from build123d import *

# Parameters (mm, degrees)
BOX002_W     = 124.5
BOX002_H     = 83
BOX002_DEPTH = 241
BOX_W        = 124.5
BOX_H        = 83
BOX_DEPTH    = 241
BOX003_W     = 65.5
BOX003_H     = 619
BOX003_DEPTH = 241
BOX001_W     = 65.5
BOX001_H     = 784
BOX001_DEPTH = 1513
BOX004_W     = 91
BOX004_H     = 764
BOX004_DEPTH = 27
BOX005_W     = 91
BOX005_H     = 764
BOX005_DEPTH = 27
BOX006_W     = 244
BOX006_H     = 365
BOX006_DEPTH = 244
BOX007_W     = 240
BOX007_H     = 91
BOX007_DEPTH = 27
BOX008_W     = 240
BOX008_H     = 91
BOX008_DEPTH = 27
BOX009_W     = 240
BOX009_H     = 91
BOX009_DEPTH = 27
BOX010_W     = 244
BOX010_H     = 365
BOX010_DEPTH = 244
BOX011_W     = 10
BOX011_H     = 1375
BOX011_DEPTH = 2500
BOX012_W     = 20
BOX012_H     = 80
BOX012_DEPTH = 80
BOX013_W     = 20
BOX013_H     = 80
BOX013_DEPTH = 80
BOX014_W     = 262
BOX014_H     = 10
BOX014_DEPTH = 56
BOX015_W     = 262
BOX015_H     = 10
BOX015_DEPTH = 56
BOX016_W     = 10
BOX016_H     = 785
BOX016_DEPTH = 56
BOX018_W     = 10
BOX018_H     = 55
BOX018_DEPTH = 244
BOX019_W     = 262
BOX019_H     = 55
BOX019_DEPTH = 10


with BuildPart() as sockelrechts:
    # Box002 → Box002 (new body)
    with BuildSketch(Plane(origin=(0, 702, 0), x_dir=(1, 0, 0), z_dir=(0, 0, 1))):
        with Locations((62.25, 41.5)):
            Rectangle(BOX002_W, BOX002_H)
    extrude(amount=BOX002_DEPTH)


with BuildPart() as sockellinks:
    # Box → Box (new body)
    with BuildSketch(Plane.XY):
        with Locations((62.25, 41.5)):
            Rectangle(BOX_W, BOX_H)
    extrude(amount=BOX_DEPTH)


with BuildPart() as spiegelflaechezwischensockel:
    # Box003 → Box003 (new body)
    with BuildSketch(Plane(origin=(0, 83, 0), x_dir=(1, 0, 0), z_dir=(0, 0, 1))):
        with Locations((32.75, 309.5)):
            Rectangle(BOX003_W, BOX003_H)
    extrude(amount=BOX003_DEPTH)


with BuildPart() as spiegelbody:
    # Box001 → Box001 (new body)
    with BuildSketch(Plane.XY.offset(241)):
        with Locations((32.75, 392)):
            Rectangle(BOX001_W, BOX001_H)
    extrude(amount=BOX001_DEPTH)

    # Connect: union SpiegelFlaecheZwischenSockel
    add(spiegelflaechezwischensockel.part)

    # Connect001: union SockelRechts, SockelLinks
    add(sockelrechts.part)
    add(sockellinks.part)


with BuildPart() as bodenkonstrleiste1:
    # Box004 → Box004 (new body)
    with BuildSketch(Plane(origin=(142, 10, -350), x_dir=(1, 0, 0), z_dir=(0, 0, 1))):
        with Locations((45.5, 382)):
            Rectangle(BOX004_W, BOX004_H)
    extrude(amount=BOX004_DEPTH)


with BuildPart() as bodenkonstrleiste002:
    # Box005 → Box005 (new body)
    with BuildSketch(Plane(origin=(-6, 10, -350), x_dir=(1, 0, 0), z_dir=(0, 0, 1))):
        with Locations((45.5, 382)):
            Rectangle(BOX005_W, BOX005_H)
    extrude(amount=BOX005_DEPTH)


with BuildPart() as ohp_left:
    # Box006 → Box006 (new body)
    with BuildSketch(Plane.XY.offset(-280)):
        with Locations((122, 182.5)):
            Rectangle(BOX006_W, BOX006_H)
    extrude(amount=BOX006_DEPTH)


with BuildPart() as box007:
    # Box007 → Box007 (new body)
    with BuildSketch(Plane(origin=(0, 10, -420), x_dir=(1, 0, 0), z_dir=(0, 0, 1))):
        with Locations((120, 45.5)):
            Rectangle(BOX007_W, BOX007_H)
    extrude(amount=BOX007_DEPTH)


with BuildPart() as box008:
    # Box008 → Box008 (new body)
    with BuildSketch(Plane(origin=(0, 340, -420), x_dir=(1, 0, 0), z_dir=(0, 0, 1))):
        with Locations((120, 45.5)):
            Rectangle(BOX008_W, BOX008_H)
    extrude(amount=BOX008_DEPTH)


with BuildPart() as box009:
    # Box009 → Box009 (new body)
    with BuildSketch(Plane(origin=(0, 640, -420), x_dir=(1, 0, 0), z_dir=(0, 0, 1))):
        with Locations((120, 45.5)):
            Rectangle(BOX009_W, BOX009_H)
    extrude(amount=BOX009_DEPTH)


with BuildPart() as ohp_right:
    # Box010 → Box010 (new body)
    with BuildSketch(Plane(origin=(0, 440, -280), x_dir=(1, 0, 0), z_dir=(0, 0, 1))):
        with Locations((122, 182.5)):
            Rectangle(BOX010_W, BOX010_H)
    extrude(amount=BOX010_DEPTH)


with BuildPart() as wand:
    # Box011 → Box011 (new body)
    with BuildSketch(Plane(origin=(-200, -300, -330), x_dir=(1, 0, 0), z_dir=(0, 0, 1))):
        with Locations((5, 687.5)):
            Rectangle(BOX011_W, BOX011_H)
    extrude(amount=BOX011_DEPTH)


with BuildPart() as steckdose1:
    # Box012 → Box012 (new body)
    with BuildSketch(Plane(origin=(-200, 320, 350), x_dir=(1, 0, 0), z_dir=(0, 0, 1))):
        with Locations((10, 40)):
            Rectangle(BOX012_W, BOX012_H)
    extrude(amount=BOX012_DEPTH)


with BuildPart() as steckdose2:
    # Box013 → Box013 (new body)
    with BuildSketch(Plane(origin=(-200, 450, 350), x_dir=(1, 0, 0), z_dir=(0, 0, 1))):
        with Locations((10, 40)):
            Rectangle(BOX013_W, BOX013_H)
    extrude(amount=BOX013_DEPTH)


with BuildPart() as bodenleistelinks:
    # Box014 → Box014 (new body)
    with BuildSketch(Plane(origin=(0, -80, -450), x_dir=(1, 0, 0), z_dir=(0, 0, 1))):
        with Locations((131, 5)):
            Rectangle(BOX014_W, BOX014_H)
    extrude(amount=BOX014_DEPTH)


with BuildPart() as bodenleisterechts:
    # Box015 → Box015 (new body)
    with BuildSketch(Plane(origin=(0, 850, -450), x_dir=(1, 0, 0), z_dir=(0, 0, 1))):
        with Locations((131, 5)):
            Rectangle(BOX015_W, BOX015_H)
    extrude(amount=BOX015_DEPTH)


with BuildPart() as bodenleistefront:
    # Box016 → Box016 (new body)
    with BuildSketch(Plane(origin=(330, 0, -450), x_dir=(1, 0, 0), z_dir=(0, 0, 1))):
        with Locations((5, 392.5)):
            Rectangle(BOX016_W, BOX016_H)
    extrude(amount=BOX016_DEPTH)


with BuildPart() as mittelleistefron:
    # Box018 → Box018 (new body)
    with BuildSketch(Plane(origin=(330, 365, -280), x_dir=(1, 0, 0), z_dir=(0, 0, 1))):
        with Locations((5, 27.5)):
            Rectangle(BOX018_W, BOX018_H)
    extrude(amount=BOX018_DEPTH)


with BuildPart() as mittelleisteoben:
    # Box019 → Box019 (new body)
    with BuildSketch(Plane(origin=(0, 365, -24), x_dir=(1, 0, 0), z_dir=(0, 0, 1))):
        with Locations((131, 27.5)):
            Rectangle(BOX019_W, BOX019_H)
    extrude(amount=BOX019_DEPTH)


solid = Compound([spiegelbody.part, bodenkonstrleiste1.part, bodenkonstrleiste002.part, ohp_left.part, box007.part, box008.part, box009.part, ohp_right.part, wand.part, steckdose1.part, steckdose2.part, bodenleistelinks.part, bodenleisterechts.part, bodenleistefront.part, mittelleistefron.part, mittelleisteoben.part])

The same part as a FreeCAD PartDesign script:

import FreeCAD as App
import Part
import Sketcher

doc = App.newDocument("Part")
params = doc.addObject("Spreadsheet::Sheet", "Params")
for row, (alias, value) in enumerate([
    ("sketch1_height", "83 mm"),
    ("sketch1_width", "124.5 mm"),
    ("pad1_length", "241 mm"),
    ("sketch2_height", "83 mm"),
    ("sketch2_width", "124.5 mm"),
    ("pad2_length", "241 mm"),
    ("sketch3_height", "619 mm"),
    ("sketch3_width", "65.5 mm"),
    ("pad3_length", "241 mm"),
    ("sketch4_height", "784 mm"),
    ("sketch4_width", "65.5 mm"),
    ("pad4_length", "1513 mm"),
    ("sketch5_width", "91 mm"),
    ("sketch5_height", "764 mm"),
    ("pad5_length", "27 mm"),
    ("sketch6_width", "91 mm"),
    ("sketch6_height", "764 mm"),
    ("pad6_length", "27 mm"),
    ("sketch7_width", "244 mm"),
    ("sketch7_height", "365 mm"),
    ("pad7_length", "244 mm"),
    ("sketch8_width", "240 mm"),
    ("sketch8_height", "91 mm"),
    ("pad8_length", "27 mm"),
    ("sketch9_width", "240 mm"),
    ("sketch9_height", "91 mm"),
    ("pad9_length", "27 mm"),
    ("sketch10_width", "240 mm"),
    ("sketch10_height", "91 mm"),
    ("pad10_length", "27 mm"),
    ("sketch11_width", "244 mm"),
    ("sketch11_height", "365 mm"),
    ("pad11_length", "244 mm"),
    ("sketch12_width", "10 mm"),
    ("sketch12_height", "1375 mm"),
    ("pad12_length", "2500 mm"),
    ("sketch13_width", "20 mm"),
    ("sketch13_height", "80 mm"),
    ("pad13_length", "80 mm"),
    ("sketch14_width", "20 mm"),
    ("sketch14_height", "80 mm"),
    ("pad14_length", "80 mm"),
    ("sketch15_width", "262 mm"),
    ("sketch15_height", "10 mm"),
    ("pad15_length", "56 mm"),
    ("sketch16_width", "262 mm"),
    ("sketch16_height", "10 mm"),
    ("pad16_length", "56 mm"),
    ("sketch17_width", "10 mm"),
    ("sketch17_height", "785 mm"),
    ("pad17_length", "56 mm"),
    ("sketch18_width", "10 mm"),
    ("sketch18_height", "55 mm"),
    ("pad18_length", "244 mm"),
    ("sketch19_width", "262 mm"),
    ("sketch19_height", "55 mm"),
    ("pad19_length", "10 mm"),
], start=1):
    params.set(f"A{row}", alias)
    params.set(f"B{row}", "=" + value)
    params.setAlias(f"B{row}", alias)

body = doc.addObject("PartDesign::Body", "Body")

# Sketch on XY plane
sketch1 = doc.addObject("Sketcher::SketchObject", "Sketch")
body.addObject(sketch1)
sketch1.AttachmentSupport = (doc.XY_Plane, [""])
sketch1.MapMode = "FlatFace"
sketch1.addGeometry(Part.LineSegment(App.Vector(0, 785, 0), App.Vector(0, 702, 0)), False)
sketch1.addGeometry(Part.LineSegment(App.Vector(0, 702, 0), App.Vector(124, 702, 0)), False)
sketch1.addGeometry(Part.LineSegment(App.Vector(124, 702, 0), App.Vector(124, 785, 0)), False)
sketch1.addGeometry(Part.LineSegment(App.Vector(124, 785, 0), App.Vector(0, 785, 0)), False)
sketch1.addConstraint(Sketcher.Constraint("Coincident", 0, 2, 1, 1))
sketch1.addConstraint(Sketcher.Constraint("Coincident", 1, 2, 2, 1))
sketch1.addConstraint(Sketcher.Constraint("Coincident", 2, 2, 3, 1))
sketch1.addConstraint(Sketcher.Constraint("Coincident", 3, 2, 0, 1))
sketch1.addConstraint(Sketcher.Constraint("Vertical", 0))
sketch1.addConstraint(Sketcher.Constraint("Horizontal", 1))
sketch1.addConstraint(Sketcher.Constraint("Vertical", 2))
sketch1.addConstraint(Sketcher.Constraint("Horizontal", 3))
sketch1.addConstraint(Sketcher.Constraint("PointOnObject", 0, 2, -2))
sketch1.addConstraint(Sketcher.Constraint("DistanceY", 0, 2, 0, 1, 83.0))
sketch1.addConstraint(Sketcher.Constraint("DistanceX", 1, 1, 1, 2, 124.5))
sketch1.addConstraint(Sketcher.Constraint("DistanceY", -1, 1, 0, 2, 702.0))
sketch1.setExpression("Constraints[9]", "Params.sketch1_height")
sketch1.setExpression("Constraints[10]", "Params.sketch1_width")
pad1 = doc.addObject("PartDesign::Pad", "Pad")
body.addObject(pad1)
pad1.Profile = sketch1
pad1.setExpression("Length", "Params.pad1_length")
body2 = doc.addObject("PartDesign::Body", "Body001")

# Sketch on XY plane
sketch2 = doc.addObject("Sketcher::SketchObject", "Sketch001")
body2.addObject(sketch2)
sketch2.AttachmentSupport = (doc.getObject("XY_Plane001"), [""])
sketch2.MapMode = "FlatFace"
sketch2.addGeometry(Part.LineSegment(App.Vector(0, 83, 0), App.Vector(0, 0, 0)), False)
sketch2.addGeometry(Part.LineSegment(App.Vector(0, 0, 0), App.Vector(124, 0, 0)), False)
sketch2.addGeometry(Part.LineSegment(App.Vector(124, 0, 0), App.Vector(124, 83, 0)), False)
sketch2.addGeometry(Part.LineSegment(App.Vector(124, 83, 0), App.Vector(0, 83, 0)), False)
sketch2.addConstraint(Sketcher.Constraint("Coincident", 0, 2, 1, 1))
sketch2.addConstraint(Sketcher.Constraint("Coincident", 1, 2, 2, 1))
sketch2.addConstraint(Sketcher.Constraint("Coincident", 2, 2, 3, 1))
sketch2.addConstraint(Sketcher.Constraint("Coincident", 3, 2, 0, 1))
sketch2.addConstraint(Sketcher.Constraint("Vertical", 0))
sketch2.addConstraint(Sketcher.Constraint("Horizontal", 1))
sketch2.addConstraint(Sketcher.Constraint("Vertical", 2))
sketch2.addConstraint(Sketcher.Constraint("Horizontal", 3))
sketch2.addConstraint(Sketcher.Constraint("Coincident", 0, 2, -1, 1))
sketch2.addConstraint(Sketcher.Constraint("DistanceY", 0, 2, 0, 1, 83.0))
sketch2.addConstraint(Sketcher.Constraint("DistanceX", 1, 1, 1, 2, 124.5))
sketch2.setExpression("Constraints[9]", "Params.sketch2_height")
sketch2.setExpression("Constraints[10]", "Params.sketch2_width")
pad2 = doc.addObject("PartDesign::Pad", "Pad001")
body2.addObject(pad2)
pad2.Profile = sketch2
pad2.setExpression("Length", "Params.pad2_length")
body3 = doc.addObject("PartDesign::Body", "Body002")

# Sketch on XY plane
sketch3 = doc.addObject("Sketcher::SketchObject", "Sketch002")
body3.addObject(sketch3)
sketch3.AttachmentSupport = (doc.getObject("XY_Plane002"), [""])
sketch3.MapMode = "FlatFace"
sketch3.addGeometry(Part.LineSegment(App.Vector(0, 702, 0), App.Vector(0, 83, 0)), False)
sketch3.addGeometry(Part.LineSegment(App.Vector(0, 83, 0), App.Vector(66, 83, 0)), False)
sketch3.addGeometry(Part.LineSegment(App.Vector(66, 83, 0), App.Vector(66, 702, 0)), False)
sketch3.addGeometry(Part.LineSegment(App.Vector(66, 702, 0), App.Vector(0, 702, 0)), False)
sketch3.addConstraint(Sketcher.Constraint("Coincident", 0, 2, 1, 1))
sketch3.addConstraint(Sketcher.Constraint("Coincident", 1, 2, 2, 1))
sketch3.addConstraint(Sketcher.Constraint("Coincident", 2, 2, 3, 1))
sketch3.addConstraint(Sketcher.Constraint("Coincident", 3, 2, 0, 1))
sketch3.addConstraint(Sketcher.Constraint("Vertical", 0))
sketch3.addConstraint(Sketcher.Constraint("Horizontal", 1))
sketch3.addConstraint(Sketcher.Constraint("Vertical", 2))
sketch3.addConstraint(Sketcher.Constraint("Horizontal", 3))
sketch3.addConstraint(Sketcher.Constraint("PointOnObject", 0, 2, -2))
sketch3.addConstraint(Sketcher.Constraint("DistanceY", 0, 2, 0, 1, 619.0))
sketch3.addConstraint(Sketcher.Constraint("DistanceX", 1, 1, 1, 2, 65.5))
sketch3.addConstraint(Sketcher.Constraint("DistanceY", -1, 1, 0, 2, 83.0))
sketch3.setExpression("Constraints[9]", "Params.sketch3_height")
sketch3.setExpression("Constraints[10]", "Params.sketch3_width")
pad3 = doc.addObject("PartDesign::Pad", "Pad002")
body3.addObject(pad3)
pad3.Profile = sketch3
pad3.setExpression("Length", "Params.pad3_length")
body4 = doc.addObject("PartDesign::Body", "Body003")

# Sketch on XY plane
sketch4 = doc.addObject("Sketcher::SketchObject", "Sketch003")
body4.addObject(sketch4)
sketch4.AttachmentSupport = (doc.getObject("XY_Plane003"), [""])
sketch4.MapMode = "FlatFace"
sketch4.AttachmentOffset = App.Placement(App.Vector(0, 0, 241), App.Rotation())
sketch4.addGeometry(Part.LineSegment(App.Vector(0, 784, 0), App.Vector(0, 0, 0)), False)
sketch4.addGeometry(Part.LineSegment(App.Vector(0, 0, 0), App.Vector(66, 0, 0)), False)
sketch4.addGeometry(Part.LineSegment(App.Vector(66, 0, 0), App.Vector(66, 784, 0)), False)
sketch4.addGeometry(Part.LineSegment(App.Vector(66, 784, 0), App.Vector(0, 784, 0)), False)
sketch4.addConstraint(Sketcher.Constraint("Coincident", 0, 2, 1, 1))
sketch4.addConstraint(Sketcher.Constraint("Coincident", 1, 2, 2, 1))
sketch4.addConstraint(Sketcher.Constraint("Coincident", 2, 2, 3, 1))
sketch4.addConstraint(Sketcher.Constraint("Coincident", 3, 2, 0, 1))
sketch4.addConstraint(Sketcher.Constraint("Vertical", 0))
sketch4.addConstraint(Sketcher.Constraint("Horizontal", 1))
sketch4.addConstraint(Sketcher.Constraint("Vertical", 2))
sketch4.addConstraint(Sketcher.Constraint("Horizontal", 3))
sketch4.addConstraint(Sketcher.Constraint("Coincident", 0, 2, -1, 1))
sketch4.addConstraint(Sketcher.Constraint("DistanceY", 0, 2, 0, 1, 784.0))
sketch4.addConstraint(Sketcher.Constraint("DistanceX", 1, 1, 1, 2, 65.5))
sketch4.setExpression("Constraints[9]", "Params.sketch4_height")
sketch4.setExpression("Constraints[10]", "Params.sketch4_width")
pad4 = doc.addObject("PartDesign::Pad", "Pad003")
body4.addObject(pad4)
pad4.Profile = sketch4
pad4.setExpression("Length", "Params.pad4_length")
doc.recompute()

boolean = doc.addObject("PartDesign::Boolean", "Boolean")
body4.addObject(boolean)
boolean.Type = "Fuse"
boolean.addObjects([body3])
doc.recompute()

boolean2 = doc.addObject("PartDesign::Boolean", "Boolean001")
body4.addObject(boolean2)
boolean2.Type = "Fuse"
boolean2.addObjects([body])
doc.recompute()

boolean3 = doc.addObject("PartDesign::Boolean", "Boolean002")
body4.addObject(boolean3)
boolean3.Type = "Fuse"
boolean3.addObjects([body2])
body5 = doc.addObject("PartDesign::Body", "Body004")

# Sketch on XY plane
sketch5 = doc.addObject("Sketcher::SketchObject", "Sketch004")
body5.addObject(sketch5)
sketch5.AttachmentSupport = (doc.getObject("XY_Plane004"), [""])
sketch5.MapMode = "FlatFace"
sketch5.AttachmentOffset = App.Placement(App.Vector(0, 0, -350), App.Rotation())
sketch5.addGeometry(Part.LineSegment(App.Vector(142, 774, 0), App.Vector(142, 10, 0)), False)
sketch5.addGeometry(Part.LineSegment(App.Vector(142, 10, 0), App.Vector(233, 10, 0)), False)
sketch5.addGeometry(Part.LineSegment(App.Vector(233, 10, 0), App.Vector(233, 774, 0)), False)
sketch5.addGeometry(Part.LineSegment(App.Vector(233, 774, 0), App.Vector(142, 774, 0)), False)
sketch5.addConstraint(Sketcher.Constraint("Coincident", 0, 2, 1, 1))
sketch5.addConstraint(Sketcher.Constraint("Coincident", 1, 2, 2, 1))
sketch5.addConstraint(Sketcher.Constraint("Coincident", 2, 2, 3, 1))
sketch5.addConstraint(Sketcher.Constraint("Coincident", 3, 2, 0, 1))
sketch5.addConstraint(Sketcher.Constraint("Vertical", 0))
sketch5.addConstraint(Sketcher.Constraint("Horizontal", 1))
sketch5.addConstraint(Sketcher.Constraint("Vertical", 2))
sketch5.addConstraint(Sketcher.Constraint("Horizontal", 3))
sketch5.addConstraint(Sketcher.Constraint("DistanceX", 1, 1, 1, 2, 91.0))
sketch5.addConstraint(Sketcher.Constraint("DistanceY", 0, 2, 0, 1, 764.0))
sketch5.addConstraint(Sketcher.Constraint("DistanceX", -1, 1, 0, 2, 142.0))
sketch5.addConstraint(Sketcher.Constraint("DistanceY", -1, 1, 0, 2, 10.0))
sketch5.setExpression("Constraints[8]", "Params.sketch5_width")
sketch5.setExpression("Constraints[9]", "Params.sketch5_height")
pad5 = doc.addObject("PartDesign::Pad", "Pad004")
body5.addObject(pad5)
pad5.Profile = sketch5
pad5.setExpression("Length", "Params.pad5_length")
body6 = doc.addObject("PartDesign::Body", "Body005")

# Sketch on XY plane
sketch6 = doc.addObject("Sketcher::SketchObject", "Sketch005")
body6.addObject(sketch6)
sketch6.AttachmentSupport = (doc.getObject("XY_Plane005"), [""])
sketch6.MapMode = "FlatFace"
sketch6.AttachmentOffset = App.Placement(App.Vector(0, 0, -350), App.Rotation())
sketch6.addGeometry(Part.LineSegment(App.Vector(-6, 774, 0), App.Vector(-6, 10, 0)), False)
sketch6.addGeometry(Part.LineSegment(App.Vector(-6, 10, 0), App.Vector(85, 10, 0)), False)
sketch6.addGeometry(Part.LineSegment(App.Vector(85, 10, 0), App.Vector(85, 774, 0)), False)
sketch6.addGeometry(Part.LineSegment(App.Vector(85, 774, 0), App.Vector(-6, 774, 0)), False)
sketch6.addConstraint(Sketcher.Constraint("Coincident", 0, 2, 1, 1))
sketch6.addConstraint(Sketcher.Constraint("Coincident", 1, 2, 2, 1))
sketch6.addConstraint(Sketcher.Constraint("Coincident", 2, 2, 3, 1))
sketch6.addConstraint(Sketcher.Constraint("Coincident", 3, 2, 0, 1))
sketch6.addConstraint(Sketcher.Constraint("Vertical", 0))
sketch6.addConstraint(Sketcher.Constraint("Horizontal", 1))
sketch6.addConstraint(Sketcher.Constraint("Vertical", 2))
sketch6.addConstraint(Sketcher.Constraint("Horizontal", 3))
sketch6.addConstraint(Sketcher.Constraint("DistanceX", 1, 1, 1, 2, 91.0))
sketch6.addConstraint(Sketcher.Constraint("DistanceY", 0, 2, 0, 1, 764.0))
sketch6.addConstraint(Sketcher.Constraint("DistanceX", 0, 2, -1, 1, 6.0))
sketch6.addConstraint(Sketcher.Constraint("DistanceY", -1, 1, 0, 2, 10.0))
sketch6.setExpression("Constraints[8]", "Params.sketch6_width")
sketch6.setExpression("Constraints[9]", "Params.sketch6_height")
pad6 = doc.addObject("PartDesign::Pad", "Pad005")
body6.addObject(pad6)
pad6.Profile = sketch6
pad6.setExpression("Length", "Params.pad6_length")
body7 = doc.addObject("PartDesign::Body", "Body006")

# Sketch on XY plane
sketch7 = doc.addObject("Sketcher::SketchObject", "Sketch006")
body7.addObject(sketch7)
sketch7.AttachmentSupport = (doc.getObject("XY_Plane006"), [""])
sketch7.MapMode = "FlatFace"
sketch7.AttachmentOffset = App.Placement(App.Vector(0, 0, -280), App.Rotation())
sketch7.addGeometry(Part.LineSegment(App.Vector(0, 365, 0), App.Vector(0, 0, 0)), False)
sketch7.addGeometry(Part.LineSegment(App.Vector(0, 0, 0), App.Vector(244, 0, 0)), False)
sketch7.addGeometry(Part.LineSegment(App.Vector(244, 0, 0), App.Vector(244, 365, 0)), False)
sketch7.addGeometry(Part.LineSegment(App.Vector(244, 365, 0), App.Vector(0, 365, 0)), False)
sketch7.addConstraint(Sketcher.Constraint("Coincident", 0, 2, 1, 1))
sketch7.addConstraint(Sketcher.Constraint("Coincident", 1, 2, 2, 1))
sketch7.addConstraint(Sketcher.Constraint("Coincident", 2, 2, 3, 1))
sketch7.addConstraint(Sketcher.Constraint("Coincident", 3, 2, 0, 1))
sketch7.addConstraint(Sketcher.Constraint("Vertical", 0))
sketch7.addConstraint(Sketcher.Constraint("Horizontal", 1))
sketch7.addConstraint(Sketcher.Constraint("Vertical", 2))
sketch7.addConstraint(Sketcher.Constraint("Horizontal", 3))
sketch7.addConstraint(Sketcher.Constraint("Coincident", 0, 2, -1, 1))
sketch7.addConstraint(Sketcher.Constraint("DistanceX", 1, 1, 1, 2, 244.0))
sketch7.addConstraint(Sketcher.Constraint("DistanceY", 0, 2, 0, 1, 365.0))
sketch7.setExpression("Constraints[9]", "Params.sketch7_width")
sketch7.setExpression("Constraints[10]", "Params.sketch7_height")
pad7 = doc.addObject("PartDesign::Pad", "Pad006")
body7.addObject(pad7)
pad7.Profile = sketch7
pad7.setExpression("Length", "Params.pad7_length")
body8 = doc.addObject("PartDesign::Body", "Body007")

# Sketch on XY plane
sketch8 = doc.addObject("Sketcher::SketchObject", "Sketch007")
body8.addObject(sketch8)
sketch8.AttachmentSupport = (doc.getObject("XY_Plane007"), [""])
sketch8.MapMode = "FlatFace"
sketch8.AttachmentOffset = App.Placement(App.Vector(0, 0, -420), App.Rotation())
sketch8.addGeometry(Part.LineSegment(App.Vector(0, 101, 0), App.Vector(0, 10, 0)), False)
sketch8.addGeometry(Part.LineSegment(App.Vector(0, 10, 0), App.Vector(240, 10, 0)), False)
sketch8.addGeometry(Part.LineSegment(App.Vector(240, 10, 0), App.Vector(240, 101, 0)), False)
sketch8.addGeometry(Part.LineSegment(App.Vector(240, 101, 0), App.Vector(0, 101, 0)), False)
sketch8.addConstraint(Sketcher.Constraint("Coincident", 0, 2, 1, 1))
sketch8.addConstraint(Sketcher.Constraint("Coincident", 1, 2, 2, 1))
sketch8.addConstraint(Sketcher.Constraint("Coincident", 2, 2, 3, 1))
sketch8.addConstraint(Sketcher.Constraint("Coincident", 3, 2, 0, 1))
sketch8.addConstraint(Sketcher.Constraint("Vertical", 0))
sketch8.addConstraint(Sketcher.Constraint("Horizontal", 1))
sketch8.addConstraint(Sketcher.Constraint("Vertical", 2))
sketch8.addConstraint(Sketcher.Constraint("Horizontal", 3))
sketch8.addConstraint(Sketcher.Constraint("PointOnObject", 0, 2, -2))
sketch8.addConstraint(Sketcher.Constraint("DistanceX", 1, 1, 1, 2, 240.0))
sketch8.addConstraint(Sketcher.Constraint("DistanceY", 0, 2, 0, 1, 91.0))
sketch8.addConstraint(Sketcher.Constraint("DistanceY", -1, 1, 0, 2, 10.0))
sketch8.setExpression("Constraints[9]", "Params.sketch8_width")
sketch8.setExpression("Constraints[10]", "Params.sketch8_height")
pad8 = doc.addObject("PartDesign::Pad", "Pad007")
body8.addObject(pad8)
pad8.Profile = sketch8
pad8.setExpression("Length", "Params.pad8_length")
body9 = doc.addObject("PartDesign::Body", "Body008")

# Sketch on XY plane
sketch9 = doc.addObject("Sketcher::SketchObject", "Sketch008")
body9.addObject(sketch9)
sketch9.AttachmentSupport = (doc.getObject("XY_Plane008"), [""])
sketch9.MapMode = "FlatFace"
sketch9.AttachmentOffset = App.Placement(App.Vector(0, 0, -420), App.Rotation())
sketch9.addGeometry(Part.LineSegment(App.Vector(0, 431, 0), App.Vector(0, 340, 0)), False)
sketch9.addGeometry(Part.LineSegment(App.Vector(0, 340, 0), App.Vector(240, 340, 0)), False)
sketch9.addGeometry(Part.LineSegment(App.Vector(240, 340, 0), App.Vector(240, 431, 0)), False)
sketch9.addGeometry(Part.LineSegment(App.Vector(240, 431, 0), App.Vector(0, 431, 0)), False)
sketch9.addConstraint(Sketcher.Constraint("Coincident", 0, 2, 1, 1))
sketch9.addConstraint(Sketcher.Constraint("Coincident", 1, 2, 2, 1))
sketch9.addConstraint(Sketcher.Constraint("Coincident", 2, 2, 3, 1))
sketch9.addConstraint(Sketcher.Constraint("Coincident", 3, 2, 0, 1))
sketch9.addConstraint(Sketcher.Constraint("Vertical", 0))
sketch9.addConstraint(Sketcher.Constraint("Horizontal", 1))
sketch9.addConstraint(Sketcher.Constraint("Vertical", 2))
sketch9.addConstraint(Sketcher.Constraint("Horizontal", 3))
sketch9.addConstraint(Sketcher.Constraint("PointOnObject", 0, 2, -2))
sketch9.addConstraint(Sketcher.Constraint("DistanceX", 1, 1, 1, 2, 240.0))
sketch9.addConstraint(Sketcher.Constraint("DistanceY", 0, 2, 0, 1, 91.0))
sketch9.addConstraint(Sketcher.Constraint("DistanceY", -1, 1, 0, 2, 340.0))
sketch9.setExpression("Constraints[9]", "Params.sketch9_width")
sketch9.setExpression("Constraints[10]", "Params.sketch9_height")
pad9 = doc.addObject("PartDesign::Pad", "Pad008")
body9.addObject(pad9)
pad9.Profile = sketch9
pad9.setExpression("Length", "Params.pad9_length")
body10 = doc.addObject("PartDesign::Body", "Body009")

# Sketch on XY plane
sketch10 = doc.addObject("Sketcher::SketchObject", "Sketch009")
body10.addObject(sketch10)
sketch10.AttachmentSupport = (doc.getObject("XY_Plane009"), [""])
sketch10.MapMode = "FlatFace"
sketch10.AttachmentOffset = App.Placement(App.Vector(0, 0, -420), App.Rotation())
sketch10.addGeometry(Part.LineSegment(App.Vector(0, 731, 0), App.Vector(0, 640, 0)), False)
sketch10.addGeometry(Part.LineSegment(App.Vector(0, 640, 0), App.Vector(240, 640, 0)), False)
sketch10.addGeometry(Part.LineSegment(App.Vector(240, 640, 0), App.Vector(240, 731, 0)), False)
sketch10.addGeometry(Part.LineSegment(App.Vector(240, 731, 0), App.Vector(0, 731, 0)), False)
sketch10.addConstraint(Sketcher.Constraint("Coincident", 0, 2, 1, 1))
sketch10.addConstraint(Sketcher.Constraint("Coincident", 1, 2, 2, 1))
sketch10.addConstraint(Sketcher.Constraint("Coincident", 2, 2, 3, 1))
sketch10.addConstraint(Sketcher.Constraint("Coincident", 3, 2, 0, 1))
sketch10.addConstraint(Sketcher.Constraint("Vertical", 0))
sketch10.addConstraint(Sketcher.Constraint("Horizontal", 1))
sketch10.addConstraint(Sketcher.Constraint("Vertical", 2))
sketch10.addConstraint(Sketcher.Constraint("Horizontal", 3))
sketch10.addConstraint(Sketcher.Constraint("PointOnObject", 0, 2, -2))
sketch10.addConstraint(Sketcher.Constraint("DistanceX", 1, 1, 1, 2, 240.0))
sketch10.addConstraint(Sketcher.Constraint("DistanceY", 0, 2, 0, 1, 91.0))
sketch10.addConstraint(Sketcher.Constraint("DistanceY", -1, 1, 0, 2, 640.0))
sketch10.setExpression("Constraints[9]", "Params.sketch10_width")
sketch10.setExpression("Constraints[10]", "Params.sketch10_height")
pad10 = doc.addObject("PartDesign::Pad", "Pad009")
body10.addObject(pad10)
pad10.Profile = sketch10
pad10.setExpression("Length", "Params.pad10_length")
body11 = doc.addObject("PartDesign::Body", "Body010")

# Sketch on XY plane
sketch11 = doc.addObject("Sketcher::SketchObject", "Sketch010")
body11.addObject(sketch11)
sketch11.AttachmentSupport = (doc.getObject("XY_Plane010"), [""])
sketch11.MapMode = "FlatFace"
sketch11.AttachmentOffset = App.Placement(App.Vector(0, 0, -280), App.Rotation())
sketch11.addGeometry(Part.LineSegment(App.Vector(0, 805, 0), App.Vector(0, 440, 0)), False)
sketch11.addGeometry(Part.LineSegment(App.Vector(0, 440, 0), App.Vector(244, 440, 0)), False)
sketch11.addGeometry(Part.LineSegment(App.Vector(244, 440, 0), App.Vector(244, 805, 0)), False)
sketch11.addGeometry(Part.LineSegment(App.Vector(244, 805, 0), App.Vector(0, 805, 0)), False)
sketch11.addConstraint(Sketcher.Constraint("Coincident", 0, 2, 1, 1))
sketch11.addConstraint(Sketcher.Constraint("Coincident", 1, 2, 2, 1))
sketch11.addConstraint(Sketcher.Constraint("Coincident", 2, 2, 3, 1))
sketch11.addConstraint(Sketcher.Constraint("Coincident", 3, 2, 0, 1))
sketch11.addConstraint(Sketcher.Constraint("Vertical", 0))
sketch11.addConstraint(Sketcher.Constraint("Horizontal", 1))
sketch11.addConstraint(Sketcher.Constraint("Vertical", 2))
sketch11.addConstraint(Sketcher.Constraint("Horizontal", 3))
sketch11.addConstraint(Sketcher.Constraint("PointOnObject", 0, 2, -2))
sketch11.addConstraint(Sketcher.Constraint("DistanceX", 1, 1, 1, 2, 244.0))
sketch11.addConstraint(Sketcher.Constraint("DistanceY", 0, 2, 0, 1, 365.0))
sketch11.addConstraint(Sketcher.Constraint("DistanceY", -1, 1, 0, 2, 440.0))
sketch11.setExpression("Constraints[9]", "Params.sketch11_width")
sketch11.setExpression("Constraints[10]", "Params.sketch11_height")
pad11 = doc.addObject("PartDesign::Pad", "Pad010")
body11.addObject(pad11)
pad11.Profile = sketch11
pad11.setExpression("Length", "Params.pad11_length")
body12 = doc.addObject("PartDesign::Body", "Body011")

# Sketch on XY plane
sketch12 = doc.addObject("Sketcher::SketchObject", "Sketch011")
body12.addObject(sketch12)
sketch12.AttachmentSupport = (doc.getObject("XY_Plane011"), [""])
sketch12.MapMode = "FlatFace"
sketch12.AttachmentOffset = App.Placement(App.Vector(0, 0, -330), App.Rotation())
sketch12.addGeometry(Part.LineSegment(App.Vector(-200, 1075, 0), App.Vector(-200, -300, 0)), False)
sketch12.addGeometry(Part.LineSegment(App.Vector(-200, -300, 0), App.Vector(-190, -300, 0)), False)
sketch12.addGeometry(Part.LineSegment(App.Vector(-190, -300, 0), App.Vector(-190, 1075, 0)), False)
sketch12.addGeometry(Part.LineSegment(App.Vector(-190, 1075, 0), App.Vector(-200, 1075, 0)), False)
sketch12.addConstraint(Sketcher.Constraint("Coincident", 0, 2, 1, 1))
sketch12.addConstraint(Sketcher.Constraint("Coincident", 1, 2, 2, 1))
sketch12.addConstraint(Sketcher.Constraint("Coincident", 2, 2, 3, 1))
sketch12.addConstraint(Sketcher.Constraint("Coincident", 3, 2, 0, 1))
sketch12.addConstraint(Sketcher.Constraint("Vertical", 0))
sketch12.addConstraint(Sketcher.Constraint("Horizontal", 1))
sketch12.addConstraint(Sketcher.Constraint("Vertical", 2))
sketch12.addConstraint(Sketcher.Constraint("Horizontal", 3))
sketch12.addConstraint(Sketcher.Constraint("DistanceX", 1, 1, 1, 2, 10.0))
sketch12.addConstraint(Sketcher.Constraint("DistanceY", 0, 2, 0, 1, 1375.0))
sketch12.addConstraint(Sketcher.Constraint("DistanceX", 0, 2, -1, 1, 200.0))
sketch12.addConstraint(Sketcher.Constraint("DistanceY", 0, 2, -1, 1, 300.0))
sketch12.setExpression("Constraints[8]", "Params.sketch12_width")
sketch12.setExpression("Constraints[9]", "Params.sketch12_height")
pad12 = doc.addObject("PartDesign::Pad", "Pad011")
body12.addObject(pad12)
pad12.Profile = sketch12
pad12.setExpression("Length", "Params.pad12_length")
body13 = doc.addObject("PartDesign::Body", "Body012")

# Sketch on XY plane
sketch13 = doc.addObject("Sketcher::SketchObject", "Sketch012")
body13.addObject(sketch13)
sketch13.AttachmentSupport = (doc.getObject("XY_Plane012"), [""])
sketch13.MapMode = "FlatFace"
sketch13.AttachmentOffset = App.Placement(App.Vector(0, 0, 350), App.Rotation())
sketch13.addGeometry(Part.LineSegment(App.Vector(-200, 400, 0), App.Vector(-200, 320, 0)), False)
sketch13.addGeometry(Part.LineSegment(App.Vector(-200, 320, 0), App.Vector(-180, 320, 0)), False)
sketch13.addGeometry(Part.LineSegment(App.Vector(-180, 320, 0), App.Vector(-180, 400, 0)), False)
sketch13.addGeometry(Part.LineSegment(App.Vector(-180, 400, 0), App.Vector(-200, 400, 0)), False)
sketch13.addConstraint(Sketcher.Constraint("Coincident", 0, 2, 1, 1))
sketch13.addConstraint(Sketcher.Constraint("Coincident", 1, 2, 2, 1))
sketch13.addConstraint(Sketcher.Constraint("Coincident", 2, 2, 3, 1))
sketch13.addConstraint(Sketcher.Constraint("Coincident", 3, 2, 0, 1))
sketch13.addConstraint(Sketcher.Constraint("Vertical", 0))
sketch13.addConstraint(Sketcher.Constraint("Horizontal", 1))
sketch13.addConstraint(Sketcher.Constraint("Vertical", 2))
sketch13.addConstraint(Sketcher.Constraint("Horizontal", 3))
sketch13.addConstraint(Sketcher.Constraint("DistanceX", 1, 1, 1, 2, 20.0))
sketch13.addConstraint(Sketcher.Constraint("DistanceY", 0, 2, 0, 1, 80.0))
sketch13.addConstraint(Sketcher.Constraint("DistanceX", 0, 2, -1, 1, 200.0))
sketch13.addConstraint(Sketcher.Constraint("DistanceY", -1, 1, 0, 2, 320.0))
sketch13.setExpression("Constraints[8]", "Params.sketch13_width")
sketch13.setExpression("Constraints[9]", "Params.sketch13_height")
pad13 = doc.addObject("PartDesign::Pad", "Pad012")
body13.addObject(pad13)
pad13.Profile = sketch13
pad13.setExpression("Length", "Params.pad13_length")
body14 = doc.addObject("PartDesign::Body", "Body013")

# Sketch on XY plane
sketch14 = doc.addObject("Sketcher::SketchObject", "Sketch013")
body14.addObject(sketch14)
sketch14.AttachmentSupport = (doc.getObject("XY_Plane013"), [""])
sketch14.MapMode = "FlatFace"
sketch14.AttachmentOffset = App.Placement(App.Vector(0, 0, 350), App.Rotation())
sketch14.addGeometry(Part.LineSegment(App.Vector(-200, 530, 0), App.Vector(-200, 450, 0)), False)
sketch14.addGeometry(Part.LineSegment(App.Vector(-200, 450, 0), App.Vector(-180, 450, 0)), False)
sketch14.addGeometry(Part.LineSegment(App.Vector(-180, 450, 0), App.Vector(-180, 530, 0)), False)
sketch14.addGeometry(Part.LineSegment(App.Vector(-180, 530, 0), App.Vector(-200, 530, 0)), False)
sketch14.addConstraint(Sketcher.Constraint("Coincident", 0, 2, 1, 1))
sketch14.addConstraint(Sketcher.Constraint("Coincident", 1, 2, 2, 1))
sketch14.addConstraint(Sketcher.Constraint("Coincident", 2, 2, 3, 1))
sketch14.addConstraint(Sketcher.Constraint("Coincident", 3, 2, 0, 1))
sketch14.addConstraint(Sketcher.Constraint("Vertical", 0))
sketch14.addConstraint(Sketcher.Constraint("Horizontal", 1))
sketch14.addConstraint(Sketcher.Constraint("Vertical", 2))
sketch14.addConstraint(Sketcher.Constraint("Horizontal", 3))
sketch14.addConstraint(Sketcher.Constraint("DistanceX", 1, 1, 1, 2, 20.0))
sketch14.addConstraint(Sketcher.Constraint("DistanceY", 0, 2, 0, 1, 80.0))
sketch14.addConstraint(Sketcher.Constraint("DistanceX", 0, 2, -1, 1, 200.0))
sketch14.addConstraint(Sketcher.Constraint("DistanceY", -1, 1, 0, 2, 450.0))
sketch14.setExpression("Constraints[8]", "Params.sketch14_width")
sketch14.setExpression("Constraints[9]", "Params.sketch14_height")
pad14 = doc.addObject("PartDesign::Pad", "Pad013")
body14.addObject(pad14)
pad14.Profile = sketch14
pad14.setExpression("Length", "Params.pad14_length")
body15 = doc.addObject("PartDesign::Body", "Body014")

# Sketch on XY plane
sketch15 = doc.addObject("Sketcher::SketchObject", "Sketch014")
body15.addObject(sketch15)
sketch15.AttachmentSupport = (doc.getObject("XY_Plane014"), [""])
sketch15.MapMode = "FlatFace"
sketch15.AttachmentOffset = App.Placement(App.Vector(0, 0, -450), App.Rotation())
sketch15.addGeometry(Part.LineSegment(App.Vector(0, -70, 0), App.Vector(0, -80, 0)), False)
sketch15.addGeometry(Part.LineSegment(App.Vector(0, -80, 0), App.Vector(262, -80, 0)), False)
sketch15.addGeometry(Part.LineSegment(App.Vector(262, -80, 0), App.Vector(262, -70, 0)), False)
sketch15.addGeometry(Part.LineSegment(App.Vector(262, -70, 0), App.Vector(0, -70, 0)), False)
sketch15.addConstraint(Sketcher.Constraint("Coincident", 0, 2, 1, 1))
sketch15.addConstraint(Sketcher.Constraint("Coincident", 1, 2, 2, 1))
sketch15.addConstraint(Sketcher.Constraint("Coincident", 2, 2, 3, 1))
sketch15.addConstraint(Sketcher.Constraint("Coincident", 3, 2, 0, 1))
sketch15.addConstraint(Sketcher.Constraint("Vertical", 0))
sketch15.addConstraint(Sketcher.Constraint("Horizontal", 1))
sketch15.addConstraint(Sketcher.Constraint("Vertical", 2))
sketch15.addConstraint(Sketcher.Constraint("Horizontal", 3))
sketch15.addConstraint(Sketcher.Constraint("PointOnObject", 0, 2, -2))
sketch15.addConstraint(Sketcher.Constraint("DistanceX", 1, 1, 1, 2, 262.0))
sketch15.addConstraint(Sketcher.Constraint("DistanceY", 0, 2, 0, 1, 10.0))
sketch15.addConstraint(Sketcher.Constraint("DistanceY", 0, 2, -1, 1, 80.0))
sketch15.setExpression("Constraints[9]", "Params.sketch15_width")
sketch15.setExpression("Constraints[10]", "Params.sketch15_height")
pad15 = doc.addObject("PartDesign::Pad", "Pad014")
body15.addObject(pad15)
pad15.Profile = sketch15
pad15.setExpression("Length", "Params.pad15_length")
body16 = doc.addObject("PartDesign::Body", "Body015")

# Sketch on XY plane
sketch16 = doc.addObject("Sketcher::SketchObject", "Sketch015")
body16.addObject(sketch16)
sketch16.AttachmentSupport = (doc.getObject("XY_Plane015"), [""])
sketch16.MapMode = "FlatFace"
sketch16.AttachmentOffset = App.Placement(App.Vector(0, 0, -450), App.Rotation())
sketch16.addGeometry(Part.LineSegment(App.Vector(0, 860, 0), App.Vector(0, 850, 0)), False)
sketch16.addGeometry(Part.LineSegment(App.Vector(0, 850, 0), App.Vector(262, 850, 0)), False)
sketch16.addGeometry(Part.LineSegment(App.Vector(262, 850, 0), App.Vector(262, 860, 0)), False)
sketch16.addGeometry(Part.LineSegment(App.Vector(262, 860, 0), App.Vector(0, 860, 0)), False)
sketch16.addConstraint(Sketcher.Constraint("Coincident", 0, 2, 1, 1))
sketch16.addConstraint(Sketcher.Constraint("Coincident", 1, 2, 2, 1))
sketch16.addConstraint(Sketcher.Constraint("Coincident", 2, 2, 3, 1))
sketch16.addConstraint(Sketcher.Constraint("Coincident", 3, 2, 0, 1))
sketch16.addConstraint(Sketcher.Constraint("Vertical", 0))
sketch16.addConstraint(Sketcher.Constraint("Horizontal", 1))
sketch16.addConstraint(Sketcher.Constraint("Vertical", 2))
sketch16.addConstraint(Sketcher.Constraint("Horizontal", 3))
sketch16.addConstraint(Sketcher.Constraint("PointOnObject", 0, 2, -2))
sketch16.addConstraint(Sketcher.Constraint("DistanceX", 1, 1, 1, 2, 262.0))
sketch16.addConstraint(Sketcher.Constraint("DistanceY", 0, 2, 0, 1, 10.0))
sketch16.addConstraint(Sketcher.Constraint("DistanceY", -1, 1, 0, 2, 850.0))
sketch16.setExpression("Constraints[9]", "Params.sketch16_width")
sketch16.setExpression("Constraints[10]", "Params.sketch16_height")
pad16 = doc.addObject("PartDesign::Pad", "Pad015")
body16.addObject(pad16)
pad16.Profile = sketch16
pad16.setExpression("Length", "Params.pad16_length")
body17 = doc.addObject("PartDesign::Body", "Body016")

# Sketch on XY plane
sketch17 = doc.addObject("Sketcher::SketchObject", "Sketch016")
body17.addObject(sketch17)
sketch17.AttachmentSupport = (doc.getObject("XY_Plane016"), [""])
sketch17.MapMode = "FlatFace"
sketch17.AttachmentOffset = App.Placement(App.Vector(0, 0, -450), App.Rotation())
sketch17.addGeometry(Part.LineSegment(App.Vector(330, 785, 0), App.Vector(330, 0, 0)), False)
sketch17.addGeometry(Part.LineSegment(App.Vector(330, 0, 0), App.Vector(340, 0, 0)), False)
sketch17.addGeometry(Part.LineSegment(App.Vector(340, 0, 0), App.Vector(340, 785, 0)), False)
sketch17.addGeometry(Part.LineSegment(App.Vector(340, 785, 0), App.Vector(330, 785, 0)), False)
sketch17.addConstraint(Sketcher.Constraint("Coincident", 0, 2, 1, 1))
sketch17.addConstraint(Sketcher.Constraint("Coincident", 1, 2, 2, 1))
sketch17.addConstraint(Sketcher.Constraint("Coincident", 2, 2, 3, 1))
sketch17.addConstraint(Sketcher.Constraint("Coincident", 3, 2, 0, 1))
sketch17.addConstraint(Sketcher.Constraint("Vertical", 0))
sketch17.addConstraint(Sketcher.Constraint("Horizontal", 1))
sketch17.addConstraint(Sketcher.Constraint("Vertical", 2))
sketch17.addConstraint(Sketcher.Constraint("Horizontal", 3))
sketch17.addConstraint(Sketcher.Constraint("PointOnObject", 0, 2, -1))
sketch17.addConstraint(Sketcher.Constraint("DistanceX", 1, 1, 1, 2, 10.0))
sketch17.addConstraint(Sketcher.Constraint("DistanceY", 0, 2, 0, 1, 785.0))
sketch17.addConstraint(Sketcher.Constraint("DistanceX", -1, 1, 0, 2, 330.0))
sketch17.setExpression("Constraints[9]", "Params.sketch17_width")
sketch17.setExpression("Constraints[10]", "Params.sketch17_height")
pad17 = doc.addObject("PartDesign::Pad", "Pad016")
body17.addObject(pad17)
pad17.Profile = sketch17
pad17.setExpression("Length", "Params.pad17_length")
body18 = doc.addObject("PartDesign::Body", "Body017")

# Sketch on XY plane
sketch18 = doc.addObject("Sketcher::SketchObject", "Sketch017")
body18.addObject(sketch18)
sketch18.AttachmentSupport = (doc.getObject("XY_Plane017"), [""])
sketch18.MapMode = "FlatFace"
sketch18.AttachmentOffset = App.Placement(App.Vector(0, 0, -280), App.Rotation())
sketch18.addGeometry(Part.LineSegment(App.Vector(330, 420, 0), App.Vector(330, 365, 0)), False)
sketch18.addGeometry(Part.LineSegment(App.Vector(330, 365, 0), App.Vector(340, 365, 0)), False)
sketch18.addGeometry(Part.LineSegment(App.Vector(340, 365, 0), App.Vector(340, 420, 0)), False)
sketch18.addGeometry(Part.LineSegment(App.Vector(340, 420, 0), App.Vector(330, 420, 0)), False)
sketch18.addConstraint(Sketcher.Constraint("Coincident", 0, 2, 1, 1))
sketch18.addConstraint(Sketcher.Constraint("Coincident", 1, 2, 2, 1))
sketch18.addConstraint(Sketcher.Constraint("Coincident", 2, 2, 3, 1))
sketch18.addConstraint(Sketcher.Constraint("Coincident", 3, 2, 0, 1))
sketch18.addConstraint(Sketcher.Constraint("Vertical", 0))
sketch18.addConstraint(Sketcher.Constraint("Horizontal", 1))
sketch18.addConstraint(Sketcher.Constraint("Vertical", 2))
sketch18.addConstraint(Sketcher.Constraint("Horizontal", 3))
sketch18.addConstraint(Sketcher.Constraint("DistanceX", 1, 1, 1, 2, 10.0))
sketch18.addConstraint(Sketcher.Constraint("DistanceY", 0, 2, 0, 1, 55.0))
sketch18.addConstraint(Sketcher.Constraint("DistanceX", -1, 1, 0, 2, 330.0))
sketch18.addConstraint(Sketcher.Constraint("DistanceY", -1, 1, 0, 2, 365.0))
sketch18.setExpression("Constraints[8]", "Params.sketch18_width")
sketch18.setExpression("Constraints[9]", "Params.sketch18_height")
pad18 = doc.addObject("PartDesign::Pad", "Pad017")
body18.addObject(pad18)
pad18.Profile = sketch18
pad18.setExpression("Length", "Params.pad18_length")
body19 = doc.addObject("PartDesign::Body", "Body018")

# Sketch on XY plane
sketch19 = doc.addObject("Sketcher::SketchObject", "Sketch018")
body19.addObject(sketch19)
sketch19.AttachmentSupport = (doc.getObject("XY_Plane018"), [""])
sketch19.MapMode = "FlatFace"
sketch19.AttachmentOffset = App.Placement(App.Vector(0, 0, -24), App.Rotation())
sketch19.addGeometry(Part.LineSegment(App.Vector(0, 420, 0), App.Vector(0, 365, 0)), False)
sketch19.addGeometry(Part.LineSegment(App.Vector(0, 365, 0), App.Vector(262, 365, 0)), False)
sketch19.addGeometry(Part.LineSegment(App.Vector(262, 365, 0), App.Vector(262, 420, 0)), False)
sketch19.addGeometry(Part.LineSegment(App.Vector(262, 420, 0), App.Vector(0, 420, 0)), False)
sketch19.addConstraint(Sketcher.Constraint("Coincident", 0, 2, 1, 1))
sketch19.addConstraint(Sketcher.Constraint("Coincident", 1, 2, 2, 1))
sketch19.addConstraint(Sketcher.Constraint("Coincident", 2, 2, 3, 1))
sketch19.addConstraint(Sketcher.Constraint("Coincident", 3, 2, 0, 1))
sketch19.addConstraint(Sketcher.Constraint("Vertical", 0))
sketch19.addConstraint(Sketcher.Constraint("Horizontal", 1))
sketch19.addConstraint(Sketcher.Constraint("Vertical", 2))
sketch19.addConstraint(Sketcher.Constraint("Horizontal", 3))
sketch19.addConstraint(Sketcher.Constraint("PointOnObject", 0, 2, -2))
sketch19.addConstraint(Sketcher.Constraint("DistanceX", 1, 1, 1, 2, 262.0))
sketch19.addConstraint(Sketcher.Constraint("DistanceY", 0, 2, 0, 1, 55.0))
sketch19.addConstraint(Sketcher.Constraint("DistanceY", -1, 1, 0, 2, 365.0))
sketch19.setExpression("Constraints[9]", "Params.sketch19_width")
sketch19.setExpression("Constraints[10]", "Params.sketch19_height")
pad19 = doc.addObject("PartDesign::Pad", "Pad018")
body19.addObject(pad19)
pad19.Profile = sketch19
pad19.setExpression("Length", "Params.pad19_length")

doc.recompute()
